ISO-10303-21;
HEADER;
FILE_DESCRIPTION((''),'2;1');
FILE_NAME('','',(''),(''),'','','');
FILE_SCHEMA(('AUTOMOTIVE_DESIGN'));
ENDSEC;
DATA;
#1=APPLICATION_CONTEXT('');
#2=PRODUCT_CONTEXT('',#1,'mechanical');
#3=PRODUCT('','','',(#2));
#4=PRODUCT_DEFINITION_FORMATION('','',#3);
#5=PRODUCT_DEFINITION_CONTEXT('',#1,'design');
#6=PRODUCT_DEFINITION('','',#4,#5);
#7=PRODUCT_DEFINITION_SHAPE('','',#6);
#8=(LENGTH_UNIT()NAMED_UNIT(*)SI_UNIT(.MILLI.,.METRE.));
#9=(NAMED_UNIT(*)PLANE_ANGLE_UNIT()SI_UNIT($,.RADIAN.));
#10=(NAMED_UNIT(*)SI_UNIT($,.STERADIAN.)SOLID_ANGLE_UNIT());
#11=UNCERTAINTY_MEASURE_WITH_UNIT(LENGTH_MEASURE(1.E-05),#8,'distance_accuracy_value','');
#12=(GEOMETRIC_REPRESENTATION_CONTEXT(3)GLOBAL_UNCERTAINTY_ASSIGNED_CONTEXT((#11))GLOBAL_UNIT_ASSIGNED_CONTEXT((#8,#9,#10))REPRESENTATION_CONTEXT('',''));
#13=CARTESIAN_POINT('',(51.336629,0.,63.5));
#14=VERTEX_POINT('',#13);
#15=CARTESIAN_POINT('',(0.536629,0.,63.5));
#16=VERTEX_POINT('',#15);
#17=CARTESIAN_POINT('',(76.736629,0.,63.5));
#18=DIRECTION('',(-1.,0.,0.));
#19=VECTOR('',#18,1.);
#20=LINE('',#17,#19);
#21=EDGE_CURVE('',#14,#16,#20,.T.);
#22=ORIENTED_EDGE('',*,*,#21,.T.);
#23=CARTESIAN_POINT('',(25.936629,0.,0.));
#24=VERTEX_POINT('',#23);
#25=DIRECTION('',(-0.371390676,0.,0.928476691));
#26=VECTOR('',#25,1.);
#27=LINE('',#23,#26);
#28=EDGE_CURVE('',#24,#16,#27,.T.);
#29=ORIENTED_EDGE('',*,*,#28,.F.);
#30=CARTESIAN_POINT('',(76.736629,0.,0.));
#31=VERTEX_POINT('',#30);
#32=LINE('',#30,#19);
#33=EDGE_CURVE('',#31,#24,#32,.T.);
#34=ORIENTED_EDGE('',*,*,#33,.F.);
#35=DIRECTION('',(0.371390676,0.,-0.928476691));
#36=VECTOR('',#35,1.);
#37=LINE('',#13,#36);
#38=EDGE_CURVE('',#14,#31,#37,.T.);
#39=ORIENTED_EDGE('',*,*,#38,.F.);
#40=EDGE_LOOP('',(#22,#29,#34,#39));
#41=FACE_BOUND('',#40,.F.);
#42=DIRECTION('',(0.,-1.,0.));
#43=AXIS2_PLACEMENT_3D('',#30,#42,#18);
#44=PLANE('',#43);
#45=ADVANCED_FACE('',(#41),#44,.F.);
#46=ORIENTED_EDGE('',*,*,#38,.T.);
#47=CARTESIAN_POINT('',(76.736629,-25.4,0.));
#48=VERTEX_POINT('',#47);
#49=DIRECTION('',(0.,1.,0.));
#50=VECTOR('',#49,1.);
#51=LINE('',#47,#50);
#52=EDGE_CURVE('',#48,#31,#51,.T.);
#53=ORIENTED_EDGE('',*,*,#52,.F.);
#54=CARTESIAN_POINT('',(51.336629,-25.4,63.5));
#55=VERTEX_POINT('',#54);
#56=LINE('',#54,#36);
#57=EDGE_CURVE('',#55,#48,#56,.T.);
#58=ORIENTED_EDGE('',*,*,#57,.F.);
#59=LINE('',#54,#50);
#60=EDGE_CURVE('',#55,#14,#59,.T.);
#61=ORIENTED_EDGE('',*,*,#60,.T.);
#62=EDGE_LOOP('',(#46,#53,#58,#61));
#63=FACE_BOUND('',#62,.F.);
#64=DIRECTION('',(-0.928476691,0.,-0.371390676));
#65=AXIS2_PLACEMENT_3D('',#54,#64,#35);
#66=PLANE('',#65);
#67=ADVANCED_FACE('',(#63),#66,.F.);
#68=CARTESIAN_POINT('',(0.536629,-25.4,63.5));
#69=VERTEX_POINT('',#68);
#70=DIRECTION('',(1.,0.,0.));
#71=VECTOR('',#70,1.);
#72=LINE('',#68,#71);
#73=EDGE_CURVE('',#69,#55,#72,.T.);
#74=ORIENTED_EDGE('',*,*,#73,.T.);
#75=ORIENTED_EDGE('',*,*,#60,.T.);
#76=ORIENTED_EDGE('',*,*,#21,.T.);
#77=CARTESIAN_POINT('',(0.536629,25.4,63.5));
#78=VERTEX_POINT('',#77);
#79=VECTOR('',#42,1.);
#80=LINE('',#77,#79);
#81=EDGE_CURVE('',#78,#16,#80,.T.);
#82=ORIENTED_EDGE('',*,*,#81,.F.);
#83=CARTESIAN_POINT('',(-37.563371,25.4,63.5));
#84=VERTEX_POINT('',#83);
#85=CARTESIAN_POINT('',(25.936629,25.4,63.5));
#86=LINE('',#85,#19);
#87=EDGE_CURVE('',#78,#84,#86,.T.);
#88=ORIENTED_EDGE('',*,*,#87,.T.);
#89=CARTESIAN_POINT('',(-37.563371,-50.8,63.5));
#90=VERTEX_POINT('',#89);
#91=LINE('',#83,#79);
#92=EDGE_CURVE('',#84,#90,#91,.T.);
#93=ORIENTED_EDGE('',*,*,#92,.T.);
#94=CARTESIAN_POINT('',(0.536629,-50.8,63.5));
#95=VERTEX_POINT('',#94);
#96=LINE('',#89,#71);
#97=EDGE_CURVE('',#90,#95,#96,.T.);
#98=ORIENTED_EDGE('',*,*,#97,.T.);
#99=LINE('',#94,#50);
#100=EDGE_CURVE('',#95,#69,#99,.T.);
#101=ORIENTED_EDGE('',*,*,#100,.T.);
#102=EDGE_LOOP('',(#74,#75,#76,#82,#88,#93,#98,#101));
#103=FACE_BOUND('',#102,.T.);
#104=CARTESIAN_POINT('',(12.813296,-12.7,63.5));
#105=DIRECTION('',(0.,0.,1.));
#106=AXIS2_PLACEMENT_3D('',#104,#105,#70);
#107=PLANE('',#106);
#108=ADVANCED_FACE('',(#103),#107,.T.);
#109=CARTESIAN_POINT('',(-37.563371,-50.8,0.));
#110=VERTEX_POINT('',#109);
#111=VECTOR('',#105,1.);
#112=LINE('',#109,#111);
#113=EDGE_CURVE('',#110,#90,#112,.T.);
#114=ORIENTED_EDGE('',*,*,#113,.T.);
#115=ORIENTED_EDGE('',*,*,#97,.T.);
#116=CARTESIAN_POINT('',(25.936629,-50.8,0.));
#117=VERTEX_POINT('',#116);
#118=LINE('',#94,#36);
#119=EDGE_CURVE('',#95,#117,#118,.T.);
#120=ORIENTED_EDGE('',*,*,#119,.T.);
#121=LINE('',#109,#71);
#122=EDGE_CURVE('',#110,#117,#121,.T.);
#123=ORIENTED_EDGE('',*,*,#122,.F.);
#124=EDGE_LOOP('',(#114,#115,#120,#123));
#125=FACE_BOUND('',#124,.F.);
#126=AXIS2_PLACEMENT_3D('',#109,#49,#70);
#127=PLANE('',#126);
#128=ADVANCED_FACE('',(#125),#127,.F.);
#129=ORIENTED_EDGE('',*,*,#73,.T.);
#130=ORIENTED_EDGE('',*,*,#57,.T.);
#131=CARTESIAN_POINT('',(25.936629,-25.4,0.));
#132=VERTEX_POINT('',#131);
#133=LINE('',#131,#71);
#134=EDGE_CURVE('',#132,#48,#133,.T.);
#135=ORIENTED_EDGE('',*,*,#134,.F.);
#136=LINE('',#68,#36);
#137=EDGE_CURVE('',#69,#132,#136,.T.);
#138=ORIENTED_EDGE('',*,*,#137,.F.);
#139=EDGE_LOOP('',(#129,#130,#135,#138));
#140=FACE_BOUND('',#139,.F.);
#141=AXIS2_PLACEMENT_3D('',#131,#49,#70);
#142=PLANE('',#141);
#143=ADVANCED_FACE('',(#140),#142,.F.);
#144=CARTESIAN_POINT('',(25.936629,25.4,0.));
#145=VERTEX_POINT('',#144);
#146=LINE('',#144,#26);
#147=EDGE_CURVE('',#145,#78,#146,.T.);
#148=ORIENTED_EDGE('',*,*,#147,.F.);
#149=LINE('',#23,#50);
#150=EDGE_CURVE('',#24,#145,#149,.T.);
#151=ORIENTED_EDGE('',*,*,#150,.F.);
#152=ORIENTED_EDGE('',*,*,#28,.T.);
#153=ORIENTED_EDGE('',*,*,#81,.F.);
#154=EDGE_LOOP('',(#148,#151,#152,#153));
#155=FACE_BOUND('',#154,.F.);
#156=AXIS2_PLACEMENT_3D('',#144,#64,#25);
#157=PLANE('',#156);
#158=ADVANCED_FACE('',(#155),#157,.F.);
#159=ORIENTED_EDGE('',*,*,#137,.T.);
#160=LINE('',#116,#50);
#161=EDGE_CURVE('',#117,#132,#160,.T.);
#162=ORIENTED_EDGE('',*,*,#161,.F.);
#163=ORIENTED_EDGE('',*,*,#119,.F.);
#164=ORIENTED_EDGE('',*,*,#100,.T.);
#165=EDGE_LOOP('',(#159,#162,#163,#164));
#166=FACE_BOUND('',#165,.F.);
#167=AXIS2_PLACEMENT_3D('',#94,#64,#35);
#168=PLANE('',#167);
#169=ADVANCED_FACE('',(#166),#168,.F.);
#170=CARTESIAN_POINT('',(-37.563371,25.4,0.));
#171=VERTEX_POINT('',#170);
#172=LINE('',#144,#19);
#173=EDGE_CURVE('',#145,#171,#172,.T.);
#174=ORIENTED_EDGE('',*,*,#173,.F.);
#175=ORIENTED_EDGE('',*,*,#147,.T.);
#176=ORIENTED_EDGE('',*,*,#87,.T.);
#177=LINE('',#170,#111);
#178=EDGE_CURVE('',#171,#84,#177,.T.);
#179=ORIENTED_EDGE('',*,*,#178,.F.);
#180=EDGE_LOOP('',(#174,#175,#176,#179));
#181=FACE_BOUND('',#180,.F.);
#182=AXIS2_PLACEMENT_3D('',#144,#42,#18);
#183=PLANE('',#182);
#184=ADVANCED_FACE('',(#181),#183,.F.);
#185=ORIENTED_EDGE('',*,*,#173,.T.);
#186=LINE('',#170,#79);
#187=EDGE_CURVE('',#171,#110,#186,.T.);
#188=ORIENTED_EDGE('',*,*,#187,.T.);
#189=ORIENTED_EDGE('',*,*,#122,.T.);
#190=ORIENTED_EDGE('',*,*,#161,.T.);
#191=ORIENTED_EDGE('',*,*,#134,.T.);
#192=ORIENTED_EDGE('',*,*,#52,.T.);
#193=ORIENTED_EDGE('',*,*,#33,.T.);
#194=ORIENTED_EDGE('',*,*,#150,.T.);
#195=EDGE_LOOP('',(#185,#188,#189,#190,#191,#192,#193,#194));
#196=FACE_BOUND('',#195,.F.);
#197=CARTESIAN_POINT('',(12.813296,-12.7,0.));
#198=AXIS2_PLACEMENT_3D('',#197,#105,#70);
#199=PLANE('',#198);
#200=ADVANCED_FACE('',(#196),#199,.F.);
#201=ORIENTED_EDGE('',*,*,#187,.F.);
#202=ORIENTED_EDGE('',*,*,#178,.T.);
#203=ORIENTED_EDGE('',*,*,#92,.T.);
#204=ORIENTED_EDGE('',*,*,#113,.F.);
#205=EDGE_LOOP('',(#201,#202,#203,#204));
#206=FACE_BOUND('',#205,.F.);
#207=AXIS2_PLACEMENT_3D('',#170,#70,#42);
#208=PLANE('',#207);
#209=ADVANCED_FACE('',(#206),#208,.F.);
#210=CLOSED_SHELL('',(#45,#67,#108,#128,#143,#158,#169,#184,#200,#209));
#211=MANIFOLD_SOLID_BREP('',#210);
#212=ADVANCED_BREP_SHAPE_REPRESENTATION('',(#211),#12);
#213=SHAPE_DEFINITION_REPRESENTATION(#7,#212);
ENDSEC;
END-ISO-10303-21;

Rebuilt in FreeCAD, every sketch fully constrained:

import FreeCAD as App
import Part
import Sketcher
from FreeCAD import Vector
Q = App.Units.Quantity

doc = App.newDocument("Part")
body = doc.addObject("PartDesign::Body", "Body")

# Sketch on XY plane
sketch1 = body.newObject("Sketcher::SketchObject", "Sketch")
sketch1.AttachmentSupport = (doc.getObject("XY_Plane"), [""])
sketch1.MapMode = "FlatFace"
sketch1.addGeometry([
    Part.LineSegment(Vector(-38, 25, 0), Vector(-38, -51, 0)),  # 0
    Part.LineSegment(Vector(-38, -51, 0), Vector(26, -51, 0)),  # 1
    Part.LineSegment(Vector(26, -51, 0), Vector(26, -25, 0)),  # 2
    Part.LineSegment(Vector(26, -25, 0), Vector(77, -25, 0)),  # 3
    Part.LineSegment(Vector(77, -25, 0), Vector(77, 0, 0)),  # 4
    Part.LineSegment(Vector(77, 0, 0), Vector(26, 0, 0)),  # 5
    Part.LineSegment(Vector(26, 0, 0), Vector(26, 25, 0)),  # 6
    Part.LineSegment(Vector(26, 25, 0), Vector(-38, 25, 0)),  # 7
], False)
sketch1.addConstraint([
    Sketcher.Constraint("Coincident", 0, 2, 1, 1),
    Sketcher.Constraint("Coincident", 1, 2, 2, 1),
    Sketcher.Constraint("Coincident", 2, 2, 3, 1),
    Sketcher.Constraint("Coincident", 3, 2, 4, 1),
    Sketcher.Constraint("Coincident", 4, 2, 5, 1),
    Sketcher.Constraint("Coincident", 5, 2, 6, 1),
    Sketcher.Constraint("Coincident", 6, 2, 7, 1),
    Sketcher.Constraint("Coincident", 7, 2, 0, 1),
    Sketcher.Constraint("Vertical", 0),
    Sketcher.Constraint("Horizontal", 1),
    Sketcher.Constraint("Vertical", 2),
    Sketcher.Constraint("Horizontal", 3),
    Sketcher.Constraint("Vertical", 4),
    Sketcher.Constraint("Horizontal", 5),
    Sketcher.Constraint("Vertical", 6),
    Sketcher.Constraint("Horizontal", 7),
    Sketcher.Constraint("Symmetric", 2, 2, 6, 2, -1),
    Sketcher.Constraint("PointOnObject", 4, 2, -1),
    Sketcher.Constraint("Equal", 2, 4),
    Sketcher.Constraint("DistanceX", 3, 1, 3, 2, Q("2 in")),
    Sketcher.Constraint("DistanceY", 0, 2, 0, 1, Q("3 in")),
    Sketcher.Constraint("DistanceX", 1, 1, 1, 2, Q("2.5 in")),
    Sketcher.Constraint("DistanceX", 0, 2, -1, 1, 37.563371),
])
pad1 = body.newObject("PartDesign::Pad", "Pad")
pad1.Profile = sketch1
pad1.Length = Q("2.5 in")

# Sketch on XZ plane
sketch2 = body.newObject("Sketcher::SketchObject", "Sketch001")
sketch2.AttachmentSupport = (doc.getObject("XZ_Plane"), [""])
sketch2.MapMode = "FlatFace"
sketch2.AttachmentOffset = App.Placement(Vector(0, 0, 2 * 25.4), App.Rotation())
sketch2.addGeometry([
    Part.LineSegment(Vector(26, 64, 0), Vector(1, 64, 0)),
    Part.LineSegment(Vector(1, 64, 0), Vector(26, 0, 0)),
    Part.LineSegment(Vector(26, 0, 0), Vector(26, 64, 0)),
], False)
sketch2.addConstraint([
    Sketcher.Constraint("Coincident", 0, 2, 1, 1),
    Sketcher.Constraint("Coincident", 1, 2, 2, 1),
    Sketcher.Constraint("Coincident", 2, 2, 0, 1),
    Sketcher.Constraint("Horizontal", 0),
    Sketcher.Constraint("Vertical", 2),
    Sketcher.Constraint("PointOnObject", 1, 2, -1),
    Sketcher.Constraint("DistanceX", 0, 2, 0, 1, Q("1 in")),
    Sketcher.Constraint("DistanceY", 2, 1, 2, 2, Q("2.5 in")),
    Sketcher.Constraint("DistanceX", -1, 1, 0, 2, 0.536629),
])
pocket1 = body.newObject("PartDesign::Pocket", "Pocket")
pocket1.Profile = sketch2
pocket1.Length = Q("1 in")

# Sketch on XZ plane
sketch3 = body.newObject("Sketcher::SketchObject", "Sketch002")
sketch3.AttachmentSupport = (doc.getObject("XZ_Plane"), [""])
sketch3.MapMode = "FlatFace"
sketch3.AttachmentOffset = App.Placement(Vector(0, 0, -1 * 25.4), App.Rotation())
sketch3.addGeometry([
    Part.LineSegment(Vector(1, 64, 0), Vector(26, 64, 0)),
    Part.LineSegment(Vector(26, 64, 0), Vector(26, 0, 0)),
    Part.LineSegment(Vector(26, 0, 0), Vector(1, 64, 0)),
], False)
sketch3.addConstraint([
    Sketcher.Constraint("Coincident", 0, 2, 1, 1),
    Sketcher.Constraint("Coincident", 1, 2, 2, 1),
    Sketcher.Constraint("Coincident", 2, 2, 0, 1),
    Sketcher.Constraint("Horizontal", 0),
    Sketcher.Constraint("Vertical", 1),
    Sketcher.Constraint("PointOnObject", 1, 2, -1),
    Sketcher.Constraint("DistanceX", 0, 1, 0, 2, Q("1 in")),
    Sketcher.Constraint("DistanceY", 1, 2, 1, 1, Q("2.5 in")),
    Sketcher.Constraint("DistanceX", -1, 1, 0, 2, 25.936629),
])
pocket2 = body.newObject("PartDesign::Pocket", "Pocket001")
pocket2.Profile = sketch3
pocket2.Length = Q("1 in")
pocket2.Reversed = True

# Sketch on XZ plane
sketch4 = body.newObject("Sketcher::SketchObject", "Sketch003")
sketch4.AttachmentSupport = (doc.getObject("XZ_Plane"), [""])
sketch4.MapMode = "FlatFace"
sketch4.AttachmentOffset = App.Placement(Vector(0, 0, 1 * 25.4), App.Rotation())
sketch4.addGeometry([
    Part.LineSegment(Vector(77, 0, 0), Vector(77, 64, 0)),
    Part.LineSegment(Vector(77, 64, 0), Vector(51, 64, 0)),
    Part.LineSegment(Vector(51, 64, 0), Vector(77, 0, 0)),
], False)
sketch4.addConstraint([
    Sketcher.Constraint("Coincident", 0, 2, 1, 1),
    Sketcher.Constraint("Coincident", 1, 2, 2, 1),
    Sketcher.Constraint("Coincident", 2, 2, 0, 1),
    Sketcher.Constraint("Vertical", 0),
    Sketcher.Constraint("Horizontal", 1),
    Sketcher.Constraint("PointOnObject", 2, 2, -1),
    Sketcher.Constraint("DistanceX", 1, 2, 1, 1, Q("1 in")),
    Sketcher.Constraint("DistanceY", 0, 1, 0, 2, Q("2.5 in")),
    Sketcher.Constraint("DistanceX", -1, 1, 0, 2, 76.736629),
])
pocket3 = body.newObject("PartDesign::Pocket", "Pocket002")
pocket3.Profile = sketch4
pocket3.Length = Q("1 in")

doc.recompute()
